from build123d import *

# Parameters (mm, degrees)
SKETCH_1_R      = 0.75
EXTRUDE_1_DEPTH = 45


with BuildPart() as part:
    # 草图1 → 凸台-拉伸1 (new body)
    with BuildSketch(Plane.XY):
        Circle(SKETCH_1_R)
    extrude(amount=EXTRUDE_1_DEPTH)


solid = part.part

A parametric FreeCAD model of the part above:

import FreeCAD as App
import Part
import Sketcher

doc = App.newDocument("Part")
body = doc.addObject("PartDesign::Body", "Body")

# Sketch on XY plane
sketch1 = body.newObject("Sketcher::SketchObject", "Sketch")
sketch1.AttachmentSupport = (doc.getObject("XY_Plane"), [""])
sketch1.MapMode = "FlatFace"
sketch1.addGeometry(Part.Circle(App.Vector(0, 0, 0), App.Vector(0, 0, 1), 0.8), False)
sketch1.addConstraint(Sketcher.Constraint("Coincident", 0, 3, -1, 1))
sketch1.addConstraint(Sketcher.Constraint("Diameter", 0, 1.5))
pad1 = body.newObject("PartDesign::Pad", "Pad")
pad1.Profile = sketch1
pad1.Length = 45

doc.recompute()
